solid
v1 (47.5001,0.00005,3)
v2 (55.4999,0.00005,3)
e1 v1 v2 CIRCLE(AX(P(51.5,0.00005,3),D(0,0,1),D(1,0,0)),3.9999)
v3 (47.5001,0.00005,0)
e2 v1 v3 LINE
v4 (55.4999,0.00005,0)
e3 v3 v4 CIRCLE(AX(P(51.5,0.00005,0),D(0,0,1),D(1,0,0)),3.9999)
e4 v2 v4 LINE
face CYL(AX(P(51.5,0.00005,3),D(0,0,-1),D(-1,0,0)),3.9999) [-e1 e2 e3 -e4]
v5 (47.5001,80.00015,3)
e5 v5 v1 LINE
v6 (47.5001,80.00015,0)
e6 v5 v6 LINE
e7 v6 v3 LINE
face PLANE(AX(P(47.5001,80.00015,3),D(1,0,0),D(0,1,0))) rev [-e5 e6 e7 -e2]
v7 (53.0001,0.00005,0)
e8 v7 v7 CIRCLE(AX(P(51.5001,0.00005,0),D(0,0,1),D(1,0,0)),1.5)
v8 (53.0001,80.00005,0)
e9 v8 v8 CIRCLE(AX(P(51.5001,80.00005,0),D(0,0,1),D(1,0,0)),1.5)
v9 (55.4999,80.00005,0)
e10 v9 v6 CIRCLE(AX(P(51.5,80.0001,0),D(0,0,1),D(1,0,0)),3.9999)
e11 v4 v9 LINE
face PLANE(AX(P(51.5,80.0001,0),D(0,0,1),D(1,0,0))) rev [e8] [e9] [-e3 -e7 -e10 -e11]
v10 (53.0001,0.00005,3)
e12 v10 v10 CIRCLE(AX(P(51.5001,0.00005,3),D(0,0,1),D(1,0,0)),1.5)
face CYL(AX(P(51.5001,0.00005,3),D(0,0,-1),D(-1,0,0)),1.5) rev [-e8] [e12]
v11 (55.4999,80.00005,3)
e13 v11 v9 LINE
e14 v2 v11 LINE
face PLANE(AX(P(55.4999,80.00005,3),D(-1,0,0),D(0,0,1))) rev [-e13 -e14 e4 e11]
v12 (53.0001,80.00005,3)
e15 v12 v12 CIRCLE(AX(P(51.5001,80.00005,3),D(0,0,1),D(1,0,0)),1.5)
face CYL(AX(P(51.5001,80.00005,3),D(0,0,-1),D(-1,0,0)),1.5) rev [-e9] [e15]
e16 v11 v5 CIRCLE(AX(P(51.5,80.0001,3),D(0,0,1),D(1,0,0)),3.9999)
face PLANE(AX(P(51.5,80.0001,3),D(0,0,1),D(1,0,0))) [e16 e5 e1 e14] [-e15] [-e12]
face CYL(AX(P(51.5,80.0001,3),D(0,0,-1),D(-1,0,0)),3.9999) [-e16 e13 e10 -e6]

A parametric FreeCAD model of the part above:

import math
import FreeCAD as App
import Part
import Sketcher

doc = App.newDocument("Part")
body = doc.addObject("PartDesign::Body", "Body")

# Sketch on XY plane
sketch1 = body.newObject("Sketcher::SketchObject", "Sketch")
sketch1.AttachmentSupport = (doc.getObject("XY_Plane"), [""])
sketch1.MapMode = "FlatFace"
sketch1.addGeometry(Part.LineSegment(App.Vector(47.5, 80, 0), App.Vector(47.5, 0, 0)), False)
sketch1.addGeometry(Part.ArcOfCircle(Part.Circle(App.Vector(51.5, 0, 0), App.Vector(0, 0, 1), 4), math.radians(-180), math.radians(0)), False)
sketch1.addGeometry(Part.LineSegment(App.Vector(55.5, 0, 0), App.Vector(55.5, 80, 0)), False)
sketch1.addGeometry(Part.ArcOfCircle(Part.Circle(App.Vector(51.5, 80, 0), App.Vector(0, 0, 1), 4), math.radians(0), math.radians(180)), False)
sketch1.addGeometry(Part.Circle(App.Vector(51.5, 0, 0), App.Vector(0, 0, 1), 1.5), False)
sketch1.addGeometry(Part.Circle(App.Vector(51.5, 80, 0), App.Vector(0, 0, 1), 1.5), False)
sketch1.addConstraint(Sketcher.Constraint("Tangent", 0, 2, 1, 1))
sketch1.addConstraint(Sketcher.Constraint("Tangent", 1, 2, 2, 1))
sketch1.addConstraint(Sketcher.Constraint("Coincident", 2, 2, 3, 1))
sketch1.addConstraint(Sketcher.Constraint("Coincident", 3, 2, 0, 1))
sketch1.addConstraint(Sketcher.Constraint("Vertical", 0))
sketch1.addConstraint(Sketcher.Constraint("Vertical", 2))
sketch1.addConstraint(Sketcher.Constraint("Equal", 4, 5))
sketch1.addConstraint(Sketcher.Constraint("Horizontal", 1, 3, 4, 3))
sketch1.addConstraint(Sketcher.Constraint("Horizontal", 5, 3, 2, 2))
sketch1.addConstraint(Sketcher.Constraint("Vertical", 4, 3, 5, 3))
sketch1.addConstraint(Sketcher.Constraint("Diameter", 4, 3.0))
sketch1.addConstraint(Sketcher.Constraint("DistanceY", 2, 1, 2, 2, 80.0))
sketch1.addConstraint(Sketcher.Constraint("DistanceX", 0, 2, 4, 3, 4.0))
sketch1.addConstraint(Sketcher.Constraint("DistanceX", -1, 1, 1, 3, 51.5))
sketch1.addConstraint(Sketcher.Constraint("Radius", 1, 3.9999))
sketch1.addConstraint(Sketcher.Constraint("DistanceY", 0, 2, 0, 1, 80.0001))
sketch1.addConstraint(Sketcher.Constraint("DistanceY", -1, 1, 3, 3, 80.0001))
sketch1.addConstraint(Sketcher.Constraint("DistanceY", -1, 1, 5, 3, 80.00005))
pad1 = body.newObject("PartDesign::Pad", "Pad")
pad1.Profile = sketch1
pad1.Length = 3

doc.recompute()
